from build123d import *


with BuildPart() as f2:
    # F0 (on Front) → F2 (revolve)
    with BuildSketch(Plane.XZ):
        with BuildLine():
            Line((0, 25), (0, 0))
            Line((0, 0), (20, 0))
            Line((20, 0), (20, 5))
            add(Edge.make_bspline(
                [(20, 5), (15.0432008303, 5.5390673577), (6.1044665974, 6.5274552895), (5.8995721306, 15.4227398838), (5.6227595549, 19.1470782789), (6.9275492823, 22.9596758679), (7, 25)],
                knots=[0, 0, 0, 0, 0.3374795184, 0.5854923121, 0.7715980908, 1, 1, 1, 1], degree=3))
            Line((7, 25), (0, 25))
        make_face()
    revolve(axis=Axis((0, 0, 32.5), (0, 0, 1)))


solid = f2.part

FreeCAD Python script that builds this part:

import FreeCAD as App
import Part
import Sketcher

V = App.Vector

doc = App.newDocument("Part")
body = doc.addObject("PartDesign::Body", "Body")

# Sketch on XZ plane
sketch1 = body.newObject("Sketcher::SketchObject", "Sketch")
sketch1.AttachmentSupport = (doc.getObject("XZ_Plane"), [""])
sketch1.MapMode = "FlatFace"
sketch1.addGeometry(Part.LineSegment(V(0, 25, 0), V(0, 0, 0)), False)
sketch1.addGeometry(Part.LineSegment(V(0, 0, 0), V(20, 0, 0)), False)
sketch1.addGeometry(Part.LineSegment(V(20, 0, 0), V(20, 5, 0)), False)
sketch1.addGeometry(Part.BSplineCurve([V(20, 5, 0), V(15.043201, 5.539067, 0), V(6.104467, 6.527455, 0), V(5.899572, 15.42274, 0), V(5.62276, 19.147078, 0), V(6.927549, 22.959676, 0), V(7, 25, 0)], [4, 1, 1, 1, 4], [0, 0.337479518, 0.585492312, 0.771598091, 1], False, 3, [1, 1, 1, 1, 1, 1, 1], False), False)
sketch1.addGeometry(Part.LineSegment(V(7, 25, 0), V(0, 25, 0)), False)
sketch1.addConstraint(Sketcher.Constraint("Block", 3))
sketch1.addConstraint(Sketcher.Constraint("Coincident", 0, 2, 1, 1))
sketch1.addConstraint(Sketcher.Constraint("Coincident", 1, 2, 2, 1))
sketch1.addConstraint(Sketcher.Constraint("Coincident", 2, 2, 3, 1))
sketch1.addConstraint(Sketcher.Constraint("Coincident", 3, 2, 4, 1))
sketch1.addConstraint(Sketcher.Constraint("Coincident", 4, 2, 0, 1))
sketch1.addConstraint(Sketcher.Constraint("Vertical", 0))
sketch1.addConstraint(Sketcher.Constraint("Horizontal", 1))
sketch1.addConstraint(Sketcher.Constraint("Vertical", 2))
sketch1.addConstraint(Sketcher.Constraint("Horizontal", 4))
sketch1.addConstraint(Sketcher.Constraint("Coincident", 0, 2, -1, 1))
revolution = body.newObject("PartDesign::Revolution", "Revolution")
revolution.Profile = sketch1
revolution.ReferenceAxis = (sketch1, ["V_Axis"])
revolution.Angle = 360

doc.recompute()
